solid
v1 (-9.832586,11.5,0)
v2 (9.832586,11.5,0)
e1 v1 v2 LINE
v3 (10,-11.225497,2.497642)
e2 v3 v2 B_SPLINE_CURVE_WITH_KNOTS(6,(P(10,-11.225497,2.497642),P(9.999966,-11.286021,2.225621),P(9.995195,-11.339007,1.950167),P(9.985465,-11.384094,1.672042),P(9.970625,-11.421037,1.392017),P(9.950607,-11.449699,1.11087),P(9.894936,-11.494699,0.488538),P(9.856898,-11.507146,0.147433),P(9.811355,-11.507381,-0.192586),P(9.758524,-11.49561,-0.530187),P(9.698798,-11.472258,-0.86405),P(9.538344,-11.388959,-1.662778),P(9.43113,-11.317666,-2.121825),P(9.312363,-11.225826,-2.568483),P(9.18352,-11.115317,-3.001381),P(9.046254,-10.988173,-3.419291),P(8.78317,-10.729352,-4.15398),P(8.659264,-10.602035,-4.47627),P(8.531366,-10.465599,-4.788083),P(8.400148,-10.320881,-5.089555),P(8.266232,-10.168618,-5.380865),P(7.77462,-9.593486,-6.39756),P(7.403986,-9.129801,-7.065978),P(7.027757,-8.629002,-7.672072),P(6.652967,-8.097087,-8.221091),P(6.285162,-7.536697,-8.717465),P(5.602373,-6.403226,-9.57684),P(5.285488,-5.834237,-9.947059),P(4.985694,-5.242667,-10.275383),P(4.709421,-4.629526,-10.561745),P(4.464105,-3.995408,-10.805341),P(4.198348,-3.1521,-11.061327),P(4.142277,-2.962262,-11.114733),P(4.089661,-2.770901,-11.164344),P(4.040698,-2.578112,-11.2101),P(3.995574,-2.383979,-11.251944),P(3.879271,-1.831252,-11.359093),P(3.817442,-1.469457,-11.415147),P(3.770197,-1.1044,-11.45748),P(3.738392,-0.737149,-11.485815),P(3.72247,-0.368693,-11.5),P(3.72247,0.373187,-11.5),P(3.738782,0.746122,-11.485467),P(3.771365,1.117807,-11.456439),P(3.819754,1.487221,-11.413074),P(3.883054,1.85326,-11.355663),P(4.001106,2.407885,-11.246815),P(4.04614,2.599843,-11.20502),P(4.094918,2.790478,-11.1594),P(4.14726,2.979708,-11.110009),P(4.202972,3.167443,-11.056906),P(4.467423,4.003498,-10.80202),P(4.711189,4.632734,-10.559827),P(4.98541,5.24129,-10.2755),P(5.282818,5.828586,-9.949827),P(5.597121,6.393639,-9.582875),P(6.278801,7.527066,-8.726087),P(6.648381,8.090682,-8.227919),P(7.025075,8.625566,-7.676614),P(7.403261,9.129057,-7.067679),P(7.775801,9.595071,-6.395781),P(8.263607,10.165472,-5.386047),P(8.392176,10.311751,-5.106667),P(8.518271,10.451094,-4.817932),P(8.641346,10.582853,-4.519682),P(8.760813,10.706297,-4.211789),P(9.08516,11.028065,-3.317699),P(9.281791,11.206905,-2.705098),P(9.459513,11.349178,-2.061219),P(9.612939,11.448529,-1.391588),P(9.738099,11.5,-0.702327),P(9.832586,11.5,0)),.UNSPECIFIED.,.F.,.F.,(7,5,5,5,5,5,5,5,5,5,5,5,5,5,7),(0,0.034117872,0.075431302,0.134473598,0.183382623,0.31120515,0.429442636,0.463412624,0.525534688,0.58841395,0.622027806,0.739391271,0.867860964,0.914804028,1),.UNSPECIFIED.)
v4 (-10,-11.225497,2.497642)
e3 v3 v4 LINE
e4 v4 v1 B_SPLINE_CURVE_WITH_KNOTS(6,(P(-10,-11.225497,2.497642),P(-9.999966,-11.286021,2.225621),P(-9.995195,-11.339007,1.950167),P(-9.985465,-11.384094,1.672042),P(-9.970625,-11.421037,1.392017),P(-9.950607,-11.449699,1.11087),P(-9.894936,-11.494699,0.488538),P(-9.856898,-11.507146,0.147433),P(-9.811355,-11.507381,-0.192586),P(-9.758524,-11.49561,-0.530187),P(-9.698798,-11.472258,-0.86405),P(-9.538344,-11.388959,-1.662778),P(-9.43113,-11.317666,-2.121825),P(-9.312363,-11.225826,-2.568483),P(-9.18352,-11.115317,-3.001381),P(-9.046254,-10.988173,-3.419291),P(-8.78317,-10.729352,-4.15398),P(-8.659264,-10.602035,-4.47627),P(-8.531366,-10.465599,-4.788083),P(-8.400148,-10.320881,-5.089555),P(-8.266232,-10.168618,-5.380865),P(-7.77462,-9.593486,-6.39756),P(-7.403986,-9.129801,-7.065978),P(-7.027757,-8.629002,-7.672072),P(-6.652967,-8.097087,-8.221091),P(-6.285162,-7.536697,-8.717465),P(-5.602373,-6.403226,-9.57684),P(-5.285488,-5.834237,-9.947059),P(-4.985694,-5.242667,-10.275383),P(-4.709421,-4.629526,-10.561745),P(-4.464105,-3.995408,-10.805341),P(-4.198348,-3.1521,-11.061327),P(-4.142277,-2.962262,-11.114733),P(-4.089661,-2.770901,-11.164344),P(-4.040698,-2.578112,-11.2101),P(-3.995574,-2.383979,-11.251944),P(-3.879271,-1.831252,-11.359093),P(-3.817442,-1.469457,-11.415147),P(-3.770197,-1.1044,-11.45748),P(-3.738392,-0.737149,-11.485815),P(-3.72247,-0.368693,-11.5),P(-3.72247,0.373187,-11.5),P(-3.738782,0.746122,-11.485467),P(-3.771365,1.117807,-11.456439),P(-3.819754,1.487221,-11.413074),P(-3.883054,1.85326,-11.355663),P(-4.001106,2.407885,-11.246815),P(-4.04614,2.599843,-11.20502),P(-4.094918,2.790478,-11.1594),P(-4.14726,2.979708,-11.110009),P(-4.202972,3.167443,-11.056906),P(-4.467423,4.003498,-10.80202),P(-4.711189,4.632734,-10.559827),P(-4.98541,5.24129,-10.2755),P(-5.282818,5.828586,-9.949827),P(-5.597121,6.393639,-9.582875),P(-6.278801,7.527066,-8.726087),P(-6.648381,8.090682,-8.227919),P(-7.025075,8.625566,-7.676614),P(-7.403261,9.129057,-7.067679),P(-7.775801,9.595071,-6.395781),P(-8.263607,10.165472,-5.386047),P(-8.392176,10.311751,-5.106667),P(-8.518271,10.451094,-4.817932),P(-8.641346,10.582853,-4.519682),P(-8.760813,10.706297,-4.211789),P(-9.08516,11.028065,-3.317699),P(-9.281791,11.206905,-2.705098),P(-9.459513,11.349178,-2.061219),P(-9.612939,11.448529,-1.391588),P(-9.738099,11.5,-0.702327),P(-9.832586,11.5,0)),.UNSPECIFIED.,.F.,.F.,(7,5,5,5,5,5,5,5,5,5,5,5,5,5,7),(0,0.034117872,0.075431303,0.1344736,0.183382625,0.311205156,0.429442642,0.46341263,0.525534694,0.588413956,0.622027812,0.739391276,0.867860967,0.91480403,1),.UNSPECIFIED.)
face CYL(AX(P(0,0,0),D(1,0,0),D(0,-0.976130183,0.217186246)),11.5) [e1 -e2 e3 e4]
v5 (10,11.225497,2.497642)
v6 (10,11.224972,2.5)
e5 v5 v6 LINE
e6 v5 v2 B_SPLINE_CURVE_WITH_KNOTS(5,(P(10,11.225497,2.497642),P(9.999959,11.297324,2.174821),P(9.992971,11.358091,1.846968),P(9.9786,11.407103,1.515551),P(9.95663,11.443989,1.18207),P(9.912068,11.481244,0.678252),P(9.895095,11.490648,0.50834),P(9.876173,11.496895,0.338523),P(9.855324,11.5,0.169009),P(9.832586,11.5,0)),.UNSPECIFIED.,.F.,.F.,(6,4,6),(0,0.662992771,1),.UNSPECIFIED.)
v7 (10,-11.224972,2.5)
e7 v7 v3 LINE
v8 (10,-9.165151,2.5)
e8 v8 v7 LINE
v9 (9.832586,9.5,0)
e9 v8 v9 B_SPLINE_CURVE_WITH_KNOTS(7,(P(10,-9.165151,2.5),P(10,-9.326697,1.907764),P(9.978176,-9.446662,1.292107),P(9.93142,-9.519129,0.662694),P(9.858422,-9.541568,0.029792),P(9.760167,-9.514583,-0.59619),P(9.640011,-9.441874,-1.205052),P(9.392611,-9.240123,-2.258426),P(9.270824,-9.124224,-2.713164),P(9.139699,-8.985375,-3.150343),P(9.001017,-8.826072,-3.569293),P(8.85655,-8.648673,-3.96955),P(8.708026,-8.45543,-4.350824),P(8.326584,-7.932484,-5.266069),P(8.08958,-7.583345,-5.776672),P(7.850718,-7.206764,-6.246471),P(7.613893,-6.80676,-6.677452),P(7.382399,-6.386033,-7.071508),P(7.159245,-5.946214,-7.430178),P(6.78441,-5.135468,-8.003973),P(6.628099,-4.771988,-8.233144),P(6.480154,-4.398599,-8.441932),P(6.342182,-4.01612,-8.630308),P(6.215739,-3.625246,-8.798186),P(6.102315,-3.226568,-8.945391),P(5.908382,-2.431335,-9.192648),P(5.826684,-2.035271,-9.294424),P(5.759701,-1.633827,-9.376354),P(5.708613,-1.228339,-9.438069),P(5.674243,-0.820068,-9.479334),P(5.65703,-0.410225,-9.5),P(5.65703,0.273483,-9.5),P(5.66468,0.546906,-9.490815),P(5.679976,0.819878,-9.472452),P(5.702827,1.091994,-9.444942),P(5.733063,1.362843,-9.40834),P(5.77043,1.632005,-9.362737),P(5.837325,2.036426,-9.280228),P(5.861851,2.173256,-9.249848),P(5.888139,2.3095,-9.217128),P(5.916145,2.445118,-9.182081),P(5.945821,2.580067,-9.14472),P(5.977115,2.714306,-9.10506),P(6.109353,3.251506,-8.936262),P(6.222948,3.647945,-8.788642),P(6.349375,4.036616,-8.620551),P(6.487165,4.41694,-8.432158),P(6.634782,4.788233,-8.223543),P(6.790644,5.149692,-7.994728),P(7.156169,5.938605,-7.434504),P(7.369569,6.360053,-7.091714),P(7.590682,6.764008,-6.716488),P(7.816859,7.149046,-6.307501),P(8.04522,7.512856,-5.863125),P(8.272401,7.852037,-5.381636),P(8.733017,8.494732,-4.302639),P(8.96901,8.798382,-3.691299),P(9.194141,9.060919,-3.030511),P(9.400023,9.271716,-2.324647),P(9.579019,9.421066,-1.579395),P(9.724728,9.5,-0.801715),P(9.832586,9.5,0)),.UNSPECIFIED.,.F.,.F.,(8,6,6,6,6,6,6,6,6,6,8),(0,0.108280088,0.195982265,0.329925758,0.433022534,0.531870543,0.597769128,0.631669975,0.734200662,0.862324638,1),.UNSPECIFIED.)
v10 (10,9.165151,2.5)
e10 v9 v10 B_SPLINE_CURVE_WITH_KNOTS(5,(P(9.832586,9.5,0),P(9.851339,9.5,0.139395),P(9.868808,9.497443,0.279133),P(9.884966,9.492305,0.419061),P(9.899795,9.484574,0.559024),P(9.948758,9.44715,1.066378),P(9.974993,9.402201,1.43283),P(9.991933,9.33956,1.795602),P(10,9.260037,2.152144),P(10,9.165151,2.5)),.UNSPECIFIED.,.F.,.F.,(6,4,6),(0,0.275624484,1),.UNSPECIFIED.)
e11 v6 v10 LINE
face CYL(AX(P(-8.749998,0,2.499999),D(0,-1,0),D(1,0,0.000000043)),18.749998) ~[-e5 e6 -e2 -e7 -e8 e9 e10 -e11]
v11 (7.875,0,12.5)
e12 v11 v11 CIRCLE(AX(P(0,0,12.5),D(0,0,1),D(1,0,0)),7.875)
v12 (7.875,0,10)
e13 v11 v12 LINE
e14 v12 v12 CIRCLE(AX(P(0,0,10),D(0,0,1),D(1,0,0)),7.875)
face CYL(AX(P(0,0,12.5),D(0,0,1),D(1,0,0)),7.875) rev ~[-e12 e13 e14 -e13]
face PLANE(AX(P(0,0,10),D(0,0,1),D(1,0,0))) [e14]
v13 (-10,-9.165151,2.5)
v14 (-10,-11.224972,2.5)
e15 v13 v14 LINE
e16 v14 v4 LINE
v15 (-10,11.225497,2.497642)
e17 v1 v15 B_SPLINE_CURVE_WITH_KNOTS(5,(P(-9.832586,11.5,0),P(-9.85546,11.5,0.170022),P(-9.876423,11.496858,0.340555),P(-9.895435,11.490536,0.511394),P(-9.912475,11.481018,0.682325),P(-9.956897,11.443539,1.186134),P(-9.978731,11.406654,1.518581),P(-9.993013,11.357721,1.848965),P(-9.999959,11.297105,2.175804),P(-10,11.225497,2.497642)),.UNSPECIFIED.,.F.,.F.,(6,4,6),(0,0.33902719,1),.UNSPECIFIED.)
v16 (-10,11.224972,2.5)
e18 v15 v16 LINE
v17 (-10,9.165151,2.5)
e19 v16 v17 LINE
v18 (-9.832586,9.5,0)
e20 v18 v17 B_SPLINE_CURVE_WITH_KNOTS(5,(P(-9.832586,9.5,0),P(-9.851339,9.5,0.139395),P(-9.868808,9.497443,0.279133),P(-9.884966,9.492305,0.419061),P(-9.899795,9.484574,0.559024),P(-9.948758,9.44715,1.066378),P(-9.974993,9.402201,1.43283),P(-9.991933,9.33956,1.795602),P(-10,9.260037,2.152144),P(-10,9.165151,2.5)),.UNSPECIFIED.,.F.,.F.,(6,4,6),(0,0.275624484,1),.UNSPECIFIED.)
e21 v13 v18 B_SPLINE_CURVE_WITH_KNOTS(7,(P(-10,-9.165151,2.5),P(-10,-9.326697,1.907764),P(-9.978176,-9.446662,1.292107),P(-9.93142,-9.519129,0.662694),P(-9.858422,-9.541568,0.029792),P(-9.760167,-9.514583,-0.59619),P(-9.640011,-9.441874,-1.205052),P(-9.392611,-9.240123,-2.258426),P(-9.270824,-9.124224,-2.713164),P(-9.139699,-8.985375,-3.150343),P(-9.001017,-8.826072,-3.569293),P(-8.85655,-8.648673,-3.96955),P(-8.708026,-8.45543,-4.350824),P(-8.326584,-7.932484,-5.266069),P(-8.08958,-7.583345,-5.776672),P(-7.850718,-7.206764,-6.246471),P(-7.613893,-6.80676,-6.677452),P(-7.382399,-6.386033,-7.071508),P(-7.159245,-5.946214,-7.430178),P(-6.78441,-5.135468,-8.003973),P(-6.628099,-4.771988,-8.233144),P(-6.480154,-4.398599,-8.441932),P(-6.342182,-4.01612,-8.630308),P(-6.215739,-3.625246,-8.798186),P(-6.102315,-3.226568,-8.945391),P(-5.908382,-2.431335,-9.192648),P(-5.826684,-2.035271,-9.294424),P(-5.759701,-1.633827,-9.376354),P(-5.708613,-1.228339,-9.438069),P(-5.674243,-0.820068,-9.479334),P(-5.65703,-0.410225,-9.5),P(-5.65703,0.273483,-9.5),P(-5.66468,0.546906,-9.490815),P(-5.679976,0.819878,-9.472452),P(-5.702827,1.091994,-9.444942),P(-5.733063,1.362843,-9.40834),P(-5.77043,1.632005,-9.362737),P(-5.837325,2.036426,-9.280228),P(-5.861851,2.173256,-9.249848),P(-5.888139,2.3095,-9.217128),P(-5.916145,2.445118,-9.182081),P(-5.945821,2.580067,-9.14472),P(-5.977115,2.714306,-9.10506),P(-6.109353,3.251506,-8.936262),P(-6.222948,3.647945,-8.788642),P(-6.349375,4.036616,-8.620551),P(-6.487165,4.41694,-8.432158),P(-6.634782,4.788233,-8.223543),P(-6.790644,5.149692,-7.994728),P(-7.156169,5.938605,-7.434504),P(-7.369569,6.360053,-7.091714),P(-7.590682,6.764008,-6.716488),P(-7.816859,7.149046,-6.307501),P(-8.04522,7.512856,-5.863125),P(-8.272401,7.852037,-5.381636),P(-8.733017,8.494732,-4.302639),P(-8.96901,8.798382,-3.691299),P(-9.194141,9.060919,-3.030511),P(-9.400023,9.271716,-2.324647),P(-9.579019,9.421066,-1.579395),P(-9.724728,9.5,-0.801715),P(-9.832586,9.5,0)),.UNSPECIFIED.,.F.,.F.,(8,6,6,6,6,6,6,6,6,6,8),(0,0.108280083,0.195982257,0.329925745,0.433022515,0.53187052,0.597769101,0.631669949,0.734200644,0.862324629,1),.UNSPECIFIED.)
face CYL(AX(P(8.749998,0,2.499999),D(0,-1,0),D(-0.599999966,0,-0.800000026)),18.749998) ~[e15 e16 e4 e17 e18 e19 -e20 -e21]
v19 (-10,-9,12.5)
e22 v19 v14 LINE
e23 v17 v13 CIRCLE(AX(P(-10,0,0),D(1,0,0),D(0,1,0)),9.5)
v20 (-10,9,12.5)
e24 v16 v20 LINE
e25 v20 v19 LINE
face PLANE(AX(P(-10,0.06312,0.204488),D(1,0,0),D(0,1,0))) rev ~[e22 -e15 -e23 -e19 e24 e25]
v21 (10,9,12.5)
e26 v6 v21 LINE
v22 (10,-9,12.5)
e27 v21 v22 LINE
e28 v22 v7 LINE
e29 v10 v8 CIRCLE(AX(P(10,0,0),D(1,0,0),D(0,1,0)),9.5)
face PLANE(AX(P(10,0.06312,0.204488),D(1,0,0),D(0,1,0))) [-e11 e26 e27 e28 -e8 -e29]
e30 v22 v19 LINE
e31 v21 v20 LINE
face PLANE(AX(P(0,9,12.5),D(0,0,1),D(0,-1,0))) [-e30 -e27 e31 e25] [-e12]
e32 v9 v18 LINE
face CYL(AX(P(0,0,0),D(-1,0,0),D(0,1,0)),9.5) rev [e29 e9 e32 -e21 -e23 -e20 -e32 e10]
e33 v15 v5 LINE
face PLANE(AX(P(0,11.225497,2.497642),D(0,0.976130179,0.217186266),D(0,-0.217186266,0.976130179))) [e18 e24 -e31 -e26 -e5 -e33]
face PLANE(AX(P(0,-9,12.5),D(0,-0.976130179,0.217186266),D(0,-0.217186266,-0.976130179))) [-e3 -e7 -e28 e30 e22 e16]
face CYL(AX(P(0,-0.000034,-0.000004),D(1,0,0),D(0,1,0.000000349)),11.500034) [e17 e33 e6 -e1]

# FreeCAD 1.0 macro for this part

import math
import FreeCAD as App
import Part
import Sketcher

doc = App.newDocument("Part")
params = doc.addObject("Spreadsheet::Sheet", "Params")
for row, (alias, value) in enumerate([
    ("sketch1_diameter", "19 mm"),
    ("sketch1_radius", "11.5 mm"),
    ("sketch1_width", "18 mm"),
    ("pad1_length", "20 mm"),
    ("sketch2_width", "5 mm"),
    ("sketch2_width2", "30 mm"),
    ("sketch2_height", "10 mm"),
    ("sketch2_radius", "18.749998 mm"),
    ("pocket1_length", "30 mm"),
    ("sketch3_diameter", "15.75 mm"),
    ("pocket2_length", "2.5 mm"),
], start=1):
    params.set(f"A{row}", alias)
    params.set(f"B{row}", "=" + value)
    params.setAlias(f"B{row}", alias)

body = doc.addObject("PartDesign::Body", "Body")

# Sketch on YZ plane
sketch1 = body.newObject("Sketcher::SketchObject", "Sketch")
sketch1.AttachmentSupport = (doc.getObject("YZ_Plane"), [""])
sketch1.MapMode = "FlatFace"
sketch1.addGeometry(Part.ArcOfCircle(Part.Circle(App.Vector(0, 0, 0), App.Vector(0, 0, 1), 11.5), math.radians(167.456179), math.radians(359.999999)), False)
sketch1.addGeometry(Part.ArcOfCircle(Part.Circle(App.Vector(-0.000034, -0.000004, 0), App.Vector(0, 0, 1), 11.500034), math.radians(0.00002), math.radians(12.543805)), False)
sketch1.addGeometry(Part.LineSegment(App.Vector(11.225497, 2.497642, 0), App.Vector(9, 12.5, 0)), False)
sketch1.addGeometry(Part.LineSegment(App.Vector(9, 12.5, 0), App.Vector(-9, 12.5, 0)), False)
sketch1.addGeometry(Part.LineSegment(App.Vector(-9, 12.5, 0), App.Vector(-11.225497, 2.497642, 0)), False)
sketch1.addGeometry(Part.Circle(App.Vector(0, 0, 0), App.Vector(0, 0, 1), 9.5), False)
sketch1.addConstraint(Sketcher.Constraint("Coincident", 0, 2, 1, 1))
sketch1.addConstraint(Sketcher.Constraint("Coincident", 1, 2, 2, 1))
sketch1.addConstraint(Sketcher.Constraint("Coincident", 2, 2, 3, 1))
sketch1.addConstraint(Sketcher.Constraint("Coincident", 3, 2, 4, 1))
sketch1.addConstraint(Sketcher.Constraint("Coincident", 4, 2, 0, 1))
sketch1.addConstraint(Sketcher.Constraint("Horizontal", 3))
sketch1.addConstraint(Sketcher.Constraint("Coincident", 0, 3, -1, 1))
sketch1.addConstraint(Sketcher.Constraint("Coincident", 5, 3, -1, 1))
sketch1.addConstraint(Sketcher.Constraint("PointOnObject", 0, 2, -1))
sketch1.addConstraint(Sketcher.Constraint("Diameter", 5, 19.0))
sketch1.addConstraint(Sketcher.Constraint("Radius", 0, 11.5))
sketch1.addConstraint(Sketcher.Constraint("DistanceX", 3, 2, 3, 1, 18.0))
sketch1.addConstraint(Sketcher.Constraint("DistanceX", -1, 1, 2, 2, 9.0))
sketch1.addConstraint(Sketcher.Constraint("DistanceY", -1, 1, 2, 2, 12.5))
sketch1.addConstraint(Sketcher.Constraint("Radius", 1, 11.500034))
sketch1.addConstraint(Sketcher.Constraint("Distance", 2, 10.246951))
sketch1.addConstraint(Sketcher.Constraint("Distance", 4, 10.246951))
sketch1.addConstraint(Sketcher.Constraint("DistanceY", 0, 3, 1, 2, 2.497642))
sketch1.setExpression("Constraints[9]", "Params.sketch1_diameter")
sketch1.setExpression("Constraints[10]", "Params.sketch1_radius")
sketch1.setExpression("Constraints[11]", "Params.sketch1_width")
pad1 = body.newObject("PartDesign::Pad", "Pad")
pad1.Profile = sketch1
pad1.setExpression("Length", "Params.pad1_length")
pad1.Midplane = True

# Sketch on XZ plane
sketch2 = body.newObject("Sketcher::SketchObject", "Sketch001")
sketch2.AttachmentSupport = (doc.getObject("XZ_Plane"), [""])
sketch2.MapMode = "FlatFace"
sketch2.addGeometry(Part.LineSegment(App.Vector(10, 12, 0), App.Vector(10, 2, 0)), False)
sketch2.addGeometry(Part.ArcOfCircle(Part.Circle(App.Vector(-9, 2, 0), App.Vector(0, 0, 1), 19), math.radians(-53), math.radians(0)), False)
sketch2.addGeometry(Part.LineSegment(App.Vector(2, -12, 0), App.Vector(-2, -12, 0)), False)
sketch2.addGeometry(Part.ArcOfCircle(Part.Circle(App.Vector(9, 2, 0), App.Vector(0, 0, 1), 19), math.radians(180), math.radians(233)), False)
sketch2.addGeometry(Part.LineSegment(App.Vector(-10, 2, 0), App.Vector(-10, 12, 0)), False)
sketch2.addGeometry(Part.LineSegment(App.Vector(-10, 12, 0), App.Vector(-15, 12, 0)), False)
sketch2.addGeometry(Part.LineSegment(App.Vector(-15, 12, 0), App.Vector(-15, -18, 0)), False)
sketch2.addGeometry(Part.LineSegment(App.Vector(-15, -18, 0), App.Vector(15, -18, 0)), False)
sketch2.addGeometry(Part.LineSegment(App.Vector(15, -18, 0), App.Vector(15, 12, 0)), False)
sketch2.addGeometry(Part.LineSegment(App.Vector(15, 12, 0), App.Vector(10, 12, 0)), False)
sketch2.addConstraint(Sketcher.Constraint("Tangent", 0, 2, 1, 2))
sketch2.addConstraint(Sketcher.Constraint("Coincident", 1, 1, 2, 1))
sketch2.addConstraint(Sketcher.Constraint("Coincident", 2, 2, 3, 2))
sketch2.addConstraint(Sketcher.Constraint("Tangent", 3, 1, 4, 1))
sketch2.addConstraint(Sketcher.Constraint("Coincident", 4, 2, 5, 1))
sketch2.addConstraint(Sketcher.Constraint("Coincident", 5, 2, 6, 1))
sketch2.addConstraint(Sketcher.Constraint("Coincident", 6, 2, 7, 1))
sketch2.addConstraint(Sketcher.Constraint("Coincident", 7, 2, 8, 1))
sketch2.addConstraint(Sketcher.Constraint("Coincident", 8, 2, 9, 1))
sketch2.addConstraint(Sketcher.Constraint("Coincident", 9, 2, 0, 1))
sketch2.addConstraint(Sketcher.Constraint("Vertical", 0))
sketch2.addConstraint(Sketcher.Constraint("Horizontal", 2))
sketch2.addConstraint(Sketcher.Constraint("Vertical", 4))
sketch2.addConstraint(Sketcher.Constraint("Horizontal", 5))
sketch2.addConstraint(Sketcher.Constraint("Vertical", 6))
sketch2.addConstraint(Sketcher.Constraint("Horizontal", 7))
sketch2.addConstraint(Sketcher.Constraint("Vertical", 8))
sketch2.addConstraint(Sketcher.Constraint("Horizontal", 9))
sketch2.addConstraint(Sketcher.Constraint("Equal", 1, 3))
sketch2.addConstraint(Sketcher.Constraint("Symmetric", 1, 3, 3, 3, -2))
sketch2.addConstraint(Sketcher.Constraint("Symmetric", 5, 2, 8, 2, -2))
sketch2.addConstraint(Sketcher.Constraint("Equal", 2, 5))
sketch2.addConstraint(Sketcher.Constraint("Equal", 7, 6))
sketch2.addConstraint(Sketcher.Constraint("DistanceX", 2, 2, 2, 1, 5.0))
sketch2.addConstraint(Sketcher.Constraint("DistanceX", 7, 1, 7, 2, 30.0))
sketch2.addConstraint(Sketcher.Constraint("DistanceY", 0, 2, 0, 1, 10.0))
sketch2.addConstraint(Sketcher.Constraint("Radius", 1, 18.749998))
sketch2.addConstraint(Sketcher.Constraint("DistanceY", -1, 1, 1, 3, 2.499999))
sketch2.setExpression("Constraints[23]", "Params.sketch2_width")
sketch2.setExpression("Constraints[24]", "Params.sketch2_width2")
sketch2.setExpression("Constraints[25]", "Params.sketch2_height")
sketch2.setExpression("Constraints[26]", "Params.sketch2_radius")
pocket1 = body.newObject("PartDesign::Pocket", "Pocket")
pocket1.Profile = sketch2
pocket1.setExpression("Length", "Params.pocket1_length")
pocket1.Midplane = True

# Sketch on XY plane
sketch3 = body.newObject("Sketcher::SketchObject", "Sketch002")
sketch3.AttachmentSupport = (doc.getObject("XY_Plane"), [""])
sketch3.MapMode = "FlatFace"
sketch3.AttachmentOffset = App.Placement(App.Vector(0, 0, 12.5), App.Rotation())
sketch3.addGeometry(Part.Circle(App.Vector(0, 0, 0), App.Vector(0, 0, 1), 8), False)
sketch3.addConstraint(Sketcher.Constraint("Coincident", 0, 3, -1, 1))
sketch3.addConstraint(Sketcher.Constraint("Diameter", 0, 15.75))
sketch3.setExpression("Constraints[1]", "Params.sketch3_diameter")
pocket2 = body.newObject("PartDesign::Pocket", "Pocket001")
pocket2.Profile = sketch3
pocket2.setExpression("Length", "Params.pocket2_length")

doc.recompute()
